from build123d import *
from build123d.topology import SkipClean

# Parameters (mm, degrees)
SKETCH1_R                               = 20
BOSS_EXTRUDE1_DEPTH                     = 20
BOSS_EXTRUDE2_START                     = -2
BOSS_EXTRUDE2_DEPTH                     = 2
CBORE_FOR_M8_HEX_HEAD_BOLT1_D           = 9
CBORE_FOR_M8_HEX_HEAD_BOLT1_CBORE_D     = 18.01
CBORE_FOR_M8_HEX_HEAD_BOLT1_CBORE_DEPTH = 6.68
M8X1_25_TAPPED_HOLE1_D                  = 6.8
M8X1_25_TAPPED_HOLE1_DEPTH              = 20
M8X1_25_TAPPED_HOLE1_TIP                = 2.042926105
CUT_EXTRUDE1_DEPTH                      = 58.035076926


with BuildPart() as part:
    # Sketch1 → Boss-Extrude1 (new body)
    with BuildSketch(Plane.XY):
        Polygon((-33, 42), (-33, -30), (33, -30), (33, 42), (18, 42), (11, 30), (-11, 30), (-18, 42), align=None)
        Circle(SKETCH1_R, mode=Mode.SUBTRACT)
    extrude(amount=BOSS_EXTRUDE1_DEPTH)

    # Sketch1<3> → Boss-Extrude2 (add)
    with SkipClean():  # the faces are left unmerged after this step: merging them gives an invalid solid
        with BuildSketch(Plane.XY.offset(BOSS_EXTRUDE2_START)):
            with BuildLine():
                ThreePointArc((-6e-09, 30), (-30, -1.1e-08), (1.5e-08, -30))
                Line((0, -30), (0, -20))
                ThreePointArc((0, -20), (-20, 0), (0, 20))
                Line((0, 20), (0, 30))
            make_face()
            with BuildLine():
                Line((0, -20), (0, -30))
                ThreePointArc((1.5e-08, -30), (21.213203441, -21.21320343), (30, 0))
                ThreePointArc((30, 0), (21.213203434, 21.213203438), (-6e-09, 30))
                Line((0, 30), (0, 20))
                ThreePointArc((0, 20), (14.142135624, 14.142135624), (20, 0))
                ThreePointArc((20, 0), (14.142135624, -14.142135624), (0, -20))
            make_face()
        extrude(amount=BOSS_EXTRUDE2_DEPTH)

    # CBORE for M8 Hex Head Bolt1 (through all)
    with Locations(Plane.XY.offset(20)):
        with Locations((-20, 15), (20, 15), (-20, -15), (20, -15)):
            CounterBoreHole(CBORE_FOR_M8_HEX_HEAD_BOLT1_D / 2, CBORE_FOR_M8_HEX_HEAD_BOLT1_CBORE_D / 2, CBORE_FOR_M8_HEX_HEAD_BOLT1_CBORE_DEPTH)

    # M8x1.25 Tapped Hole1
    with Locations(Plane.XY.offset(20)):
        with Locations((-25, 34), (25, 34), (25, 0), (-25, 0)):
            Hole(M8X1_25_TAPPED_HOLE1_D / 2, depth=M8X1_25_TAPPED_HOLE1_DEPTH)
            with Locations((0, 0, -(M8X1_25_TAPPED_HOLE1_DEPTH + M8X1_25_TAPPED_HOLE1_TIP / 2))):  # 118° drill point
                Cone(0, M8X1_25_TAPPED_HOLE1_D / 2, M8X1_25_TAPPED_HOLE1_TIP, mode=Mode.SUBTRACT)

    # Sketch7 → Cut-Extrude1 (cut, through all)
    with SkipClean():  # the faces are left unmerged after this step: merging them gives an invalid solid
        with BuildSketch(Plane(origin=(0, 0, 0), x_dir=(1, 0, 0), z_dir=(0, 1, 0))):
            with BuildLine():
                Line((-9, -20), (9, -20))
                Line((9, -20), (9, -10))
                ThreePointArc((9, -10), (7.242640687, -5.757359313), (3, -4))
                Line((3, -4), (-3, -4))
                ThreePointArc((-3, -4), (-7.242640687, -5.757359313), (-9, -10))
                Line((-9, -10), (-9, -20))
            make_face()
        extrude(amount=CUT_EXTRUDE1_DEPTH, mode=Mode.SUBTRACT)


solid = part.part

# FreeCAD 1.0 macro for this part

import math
import FreeCAD as App
import Part
import Sketcher

V = App.Vector
Q = App.Units.Quantity

doc = App.newDocument("Part")
body = doc.addObject("PartDesign::Body", "Body")

sketch1 = body.newObject("Sketcher::SketchObject", "Sketch")
sketch1.AttachmentSupport = (doc.getObject("XY_Plane"), [""])
sketch1.MapMode = "FlatFace"
sketch1.addGeometry([
    Part.LineSegment(V(-33, 42, 0), V(-33, -30, 0)),
    Part.LineSegment(V(-33, -30, 0), V(33, -30, 0)),
    Part.LineSegment(V(33, -30, 0), V(33, 42, 0)),
    Part.LineSegment(V(33, 42, 0), V(18, 42, 0)),
    Part.LineSegment(V(18, 42, 0), V(11, 30, 0)),
    Part.LineSegment(V(11, 30, 0), V(-11, 30, 0)),
    Part.LineSegment(V(-11, 30, 0), V(-18, 42, 0)),
    Part.LineSegment(V(-18, 42, 0), V(-33, 42, 0)),
    Part.Circle(V(0, 0, 0), V(0, 0, 1), 20),
], False)
sketch1.addConstraint([
    Sketcher.Constraint("Coincident", 0, 2, 1, 1),
    Sketcher.Constraint("Coincident", 1, 2, 2, 1),
    Sketcher.Constraint("Coincident", 2, 2, 3, 1),
    Sketcher.Constraint("Coincident", 3, 2, 4, 1),
    Sketcher.Constraint("Coincident", 4, 2, 5, 1),
    Sketcher.Constraint("Coincident", 5, 2, 6, 1),
    Sketcher.Constraint("Coincident", 6, 2, 7, 1),
    Sketcher.Constraint("Coincident", 7, 2, 0, 1),
    Sketcher.Constraint("Vertical", 0),
    Sketcher.Constraint("Horizontal", 1),
    Sketcher.Constraint("Vertical", 2),
    Sketcher.Constraint("Horizontal", 3),
    Sketcher.Constraint("Horizontal", 5),
    Sketcher.Constraint("Horizontal", 7),
    Sketcher.Constraint("Coincident", 8, 3, -1, 1),
    Sketcher.Constraint("Symmetric", 3, 2, 6, 2, -2),
    Sketcher.Constraint("Equal", 3, 7),
    Sketcher.Constraint("Equal", 4, 6),
    Sketcher.Constraint("Diameter", 8, Q("40 mm")),
    Sketcher.Constraint("DistanceX", 1, 1, 1, 2, Q("66 mm")),
    Sketcher.Constraint("DistanceX", 3, 2, 3, 1, Q("15 mm")),
    Sketcher.Constraint("DistanceX", 5, 2, 5, 1, Q("22 mm")),
    Sketcher.Constraint("DistanceY", 0, 2, 0, 1, Q("72 mm")),
    Sketcher.Constraint("DistanceY", 0, 2, -1, 1, Q("30 mm")),
    Sketcher.Constraint("DistanceY", -1, 1, 4, 2, Q("30 mm")),
])
pad1 = body.newObject("PartDesign::Pad", "Pad")
pad1.Profile = sketch1
pad1.Length = 20

sketch2 = body.newObject("Sketcher::SketchObject", "Sketch001")
sketch2.AttachmentSupport = (doc.getObject("XY_Plane"), [""])
sketch2.MapMode = "FlatFace"
sketch2.AttachmentOffset = App.Placement(V(0, 0, -2), App.Rotation())
sketch2.addGeometry([
    Part.ArcOfCircle(Part.Circle(V(0, 0, 0), V(0, 0, 1), 30), math.radians(90), math.radians(270)),
    Part.LineSegment(V(0, -30, 0), V(0, -20, 0)),
    Part.ArcOfCircle(Part.Circle(V(0, 0, 0), V(0, 0, 1), 20), math.radians(90), math.radians(270)),
    Part.LineSegment(V(0, 20, 0), V(0, 30, 0)),
    Part.LineSegment(V(0, -20, 0), V(0, -30, 0)),
    Part.ArcOfCircle(Part.Circle(V(0, 0, 0), V(0, 0, 1), 30), math.radians(-90), math.radians(0)),
    Part.ArcOfCircle(Part.Circle(V(0, 0, 0), V(0, 0, 1), 30), math.radians(0), math.radians(90)),
    Part.LineSegment(V(0, 30, 0), V(0, 20, 0)),
    Part.ArcOfCircle(Part.Circle(V(0, 0, 0), V(0, 0, 1), 20), math.radians(0), math.radians(90)),
    Part.ArcOfCircle(Part.Circle(V(0, 0, 0), V(0, 0, 1), 20), math.radians(-90), math.radians(0)),
], False)
sketch2.addConstraint([
    Sketcher.Constraint("Coincident", 0, 2, 1, 1),
    Sketcher.Constraint("Coincident", 1, 2, 2, 2),
    Sketcher.Constraint("Coincident", 2, 1, 3, 1),
    Sketcher.Constraint("Coincident", 3, 2, 0, 1),
    Sketcher.Constraint("Coincident", 4, 2, 5, 1),
    Sketcher.Constraint("Tangent", 5, 2, 6, 1),
    Sketcher.Constraint("Coincident", 6, 2, 7, 1),
    Sketcher.Constraint("Coincident", 7, 2, 8, 2),
    Sketcher.Constraint("Tangent", 8, 1, 9, 2),
    Sketcher.Constraint("Coincident", 9, 1, 4, 1),
    Sketcher.Constraint("Vertical", 1),
    Sketcher.Constraint("Vertical", 3),
    Sketcher.Constraint("Vertical", 4),
    Sketcher.Constraint("Vertical", 7),
    Sketcher.Constraint("Coincident", 0, 3, -1, 1),
    Sketcher.Constraint("Coincident", 2, 3, -1, 1),
    Sketcher.Constraint("Coincident", 5, 3, -1, 1),
    Sketcher.Constraint("Coincident", 8, 3, -1, 1),
    Sketcher.Constraint("Coincident", 4, 2, 0, 2),
    Sketcher.Constraint("Coincident", 6, 2, 3, 2),
    Sketcher.Constraint("Equal", 2, 8),
    Sketcher.Constraint("Equal", 8, 9),
    Sketcher.Constraint("PointOnObject", 0, 2, -2),
    Sketcher.Constraint("PointOnObject", 2, 1, -2),
    Sketcher.Constraint("PointOnObject", 5, 2, -1),
    Sketcher.Constraint("PointOnObject", 8, 1, -1),
    Sketcher.Constraint("Radius", 0, Q("30 mm")),
    Sketcher.Constraint("Radius", 2, Q("20 mm")),
])
pad2 = body.newObject("PartDesign::Pad", "Pad001")
pad2.Profile = sketch2
pad2.Length = 2

sketch3 = body.newObject("Sketcher::SketchObject", "Sketch002")
sketch3.AttachmentSupport = (doc.getObject("XY_Plane"), [""])
sketch3.MapMode = "FlatFace"
sketch3.AttachmentOffset = App.Placement(V(0, 0, 20), App.Rotation())
sketch3.addGeometry([
    Part.Circle(V(-20, 15, 0), V(0, 0, 1), 4.5),
    Part.Circle(V(20, 15, 0), V(0, 0, 1), 4.5),
    Part.Circle(V(-20, -15, 0), V(0, 0, 1), 4.5),
    Part.Circle(V(20, -15, 0), V(0, 0, 1), 4.5),
], False)
sketch3.addConstraint([
    Sketcher.Constraint("Equal", 0, 1),
    Sketcher.Constraint("Equal", 1, 2),
    Sketcher.Constraint("Equal", 2, 3),
    Sketcher.Constraint("Symmetric", 1, 3, 2, 3, -1, 1),
    Sketcher.Constraint("Symmetric", 0, 3, 3, 3, -1, 1),
    Sketcher.Constraint("Symmetric", 0, 3, 1, 3, -2),
    Sketcher.Constraint("Diameter", 0, Q("9 mm")),
    Sketcher.Constraint("DistanceX", 0, 3, -1, 1, Q("20 mm")),
    Sketcher.Constraint("DistanceY", -1, 1, 0, 3, Q("15 mm")),
])
doc.recompute()
hole = body.newObject("PartDesign::Hole", "Hole")
hole.Profile = sketch3
hole.ThreadType = "None"
hole.Diameter = 9
hole.DepthType = "ThroughAll"
hole.HoleCutType = "Counterbore"
hole.HoleCutDiameter = 18.01
hole.HoleCutDepth = 6.68

sketch4 = body.newObject("Sketcher::SketchObject", "Sketch003")
sketch4.AttachmentSupport = (doc.getObject("XY_Plane"), [""])
sketch4.MapMode = "FlatFace"
sketch4.AttachmentOffset = App.Placement(V(0, 0, 20), App.Rotation())
sketch4.addGeometry([
    Part.Circle(V(-25, 34, 0), V(0, 0, 1), 3.4),
    Part.Circle(V(25, 34, 0), V(0, 0, 1), 3.4),
    Part.Circle(V(25, 0, 0), V(0, 0, 1), 3.4),
    Part.Circle(V(-25, 0, 0), V(0, 0, 1), 3.4),
], False)
sketch4.addConstraint([
    Sketcher.Constraint("Equal", 0, 1),
    Sketcher.Constraint("Equal", 1, 2),
    Sketcher.Constraint("Equal", 2, 3),
    Sketcher.Constraint("Symmetric", 2, 3, 3, 3, -1, 1),
    Sketcher.Constraint("Symmetric", 0, 3, 1, 3, -2),
    Sketcher.Constraint("PointOnObject", 2, 3, -1),
    Sketcher.Constraint("Vertical", 1, 3, 2, 3),
    Sketcher.Constraint("Diameter", 0, Q("6.8 mm")),
    Sketcher.Constraint("DistanceX", 0, 3, -1, 1, Q("25 mm")),
    Sketcher.Constraint("DistanceY", -1, 1, 0, 3, Q("34 mm")),
])
doc.recompute()
hole2 = body.newObject("PartDesign::Hole", "Hole001")
hole2.Profile = sketch4
hole2.ThreadType = "None"
hole2.Diameter = 6.8
hole2.DepthType = "Dimension"
hole2.Depth = 20
hole2.DrillPoint = "Angled"
hole2.DrillPointAngle = 118

sketch5 = body.newObject("Sketcher::SketchObject", "Sketch004")
sketch5.AttachmentSupport = (doc.getObject("XZ_Plane"), [""])
sketch5.MapMode = "FlatFace"
sketch5.addGeometry([
    Part.LineSegment(V(-9, 20, 0), V(9, 20, 0)),
    Part.LineSegment(V(9, 20, 0), V(9, 10, 0)),
    Part.ArcOfCircle(Part.Circle(V(3, 10, 0), V(0, 0, 1), 6), math.radians(-90), math.radians(0)),
    Part.LineSegment(V(3, 4, 0), V(-3, 4, 0)),
    Part.ArcOfCircle(Part.Circle(V(-3, 10, 0), V(0, 0, 1), 6), math.radians(180), math.radians(270)),
    Part.LineSegment(V(-9, 10, 0), V(-9, 20, 0)),
], False)
sketch5.addConstraint([
    Sketcher.Constraint("Coincident", 0, 2, 1, 1),
    Sketcher.Constraint("Tangent", 1, 2, 2, 2),
    Sketcher.Constraint("Tangent", 2, 1, 3, 1),
    Sketcher.Constraint("Tangent", 3, 2, 4, 2),
    Sketcher.Constraint("Tangent", 4, 1, 5, 1),
    Sketcher.Constraint("Coincident", 5, 2, 0, 1),
    Sketcher.Constraint("Horizontal", 0),
    Sketcher.Constraint("Vertical", 1),
    Sketcher.Constraint("Horizontal", 3),
    Sketcher.Constraint("Vertical", 5),
    Sketcher.Constraint("Equal", 2, 4),
    Sketcher.Constraint("Radius", 2, Q("6 mm")),
    Sketcher.Constraint("DistanceX", 0, 1, 0, 2, Q("18 mm")),
    Sketcher.Constraint("DistanceY", 1, 2, 1, 1, Q("10 mm")),
    Sketcher.Constraint("DistanceX", -1, 1, 2, 3, Q("3 mm")),
    Sketcher.Constraint("DistanceY", -1, 1, 2, 3, Q("10 mm")),
])
pocket1 = body.newObject("PartDesign::Pocket", "Pocket")
pocket1.Profile = sketch5
pocket1.Type = "ThroughAll"

doc.recompute()
